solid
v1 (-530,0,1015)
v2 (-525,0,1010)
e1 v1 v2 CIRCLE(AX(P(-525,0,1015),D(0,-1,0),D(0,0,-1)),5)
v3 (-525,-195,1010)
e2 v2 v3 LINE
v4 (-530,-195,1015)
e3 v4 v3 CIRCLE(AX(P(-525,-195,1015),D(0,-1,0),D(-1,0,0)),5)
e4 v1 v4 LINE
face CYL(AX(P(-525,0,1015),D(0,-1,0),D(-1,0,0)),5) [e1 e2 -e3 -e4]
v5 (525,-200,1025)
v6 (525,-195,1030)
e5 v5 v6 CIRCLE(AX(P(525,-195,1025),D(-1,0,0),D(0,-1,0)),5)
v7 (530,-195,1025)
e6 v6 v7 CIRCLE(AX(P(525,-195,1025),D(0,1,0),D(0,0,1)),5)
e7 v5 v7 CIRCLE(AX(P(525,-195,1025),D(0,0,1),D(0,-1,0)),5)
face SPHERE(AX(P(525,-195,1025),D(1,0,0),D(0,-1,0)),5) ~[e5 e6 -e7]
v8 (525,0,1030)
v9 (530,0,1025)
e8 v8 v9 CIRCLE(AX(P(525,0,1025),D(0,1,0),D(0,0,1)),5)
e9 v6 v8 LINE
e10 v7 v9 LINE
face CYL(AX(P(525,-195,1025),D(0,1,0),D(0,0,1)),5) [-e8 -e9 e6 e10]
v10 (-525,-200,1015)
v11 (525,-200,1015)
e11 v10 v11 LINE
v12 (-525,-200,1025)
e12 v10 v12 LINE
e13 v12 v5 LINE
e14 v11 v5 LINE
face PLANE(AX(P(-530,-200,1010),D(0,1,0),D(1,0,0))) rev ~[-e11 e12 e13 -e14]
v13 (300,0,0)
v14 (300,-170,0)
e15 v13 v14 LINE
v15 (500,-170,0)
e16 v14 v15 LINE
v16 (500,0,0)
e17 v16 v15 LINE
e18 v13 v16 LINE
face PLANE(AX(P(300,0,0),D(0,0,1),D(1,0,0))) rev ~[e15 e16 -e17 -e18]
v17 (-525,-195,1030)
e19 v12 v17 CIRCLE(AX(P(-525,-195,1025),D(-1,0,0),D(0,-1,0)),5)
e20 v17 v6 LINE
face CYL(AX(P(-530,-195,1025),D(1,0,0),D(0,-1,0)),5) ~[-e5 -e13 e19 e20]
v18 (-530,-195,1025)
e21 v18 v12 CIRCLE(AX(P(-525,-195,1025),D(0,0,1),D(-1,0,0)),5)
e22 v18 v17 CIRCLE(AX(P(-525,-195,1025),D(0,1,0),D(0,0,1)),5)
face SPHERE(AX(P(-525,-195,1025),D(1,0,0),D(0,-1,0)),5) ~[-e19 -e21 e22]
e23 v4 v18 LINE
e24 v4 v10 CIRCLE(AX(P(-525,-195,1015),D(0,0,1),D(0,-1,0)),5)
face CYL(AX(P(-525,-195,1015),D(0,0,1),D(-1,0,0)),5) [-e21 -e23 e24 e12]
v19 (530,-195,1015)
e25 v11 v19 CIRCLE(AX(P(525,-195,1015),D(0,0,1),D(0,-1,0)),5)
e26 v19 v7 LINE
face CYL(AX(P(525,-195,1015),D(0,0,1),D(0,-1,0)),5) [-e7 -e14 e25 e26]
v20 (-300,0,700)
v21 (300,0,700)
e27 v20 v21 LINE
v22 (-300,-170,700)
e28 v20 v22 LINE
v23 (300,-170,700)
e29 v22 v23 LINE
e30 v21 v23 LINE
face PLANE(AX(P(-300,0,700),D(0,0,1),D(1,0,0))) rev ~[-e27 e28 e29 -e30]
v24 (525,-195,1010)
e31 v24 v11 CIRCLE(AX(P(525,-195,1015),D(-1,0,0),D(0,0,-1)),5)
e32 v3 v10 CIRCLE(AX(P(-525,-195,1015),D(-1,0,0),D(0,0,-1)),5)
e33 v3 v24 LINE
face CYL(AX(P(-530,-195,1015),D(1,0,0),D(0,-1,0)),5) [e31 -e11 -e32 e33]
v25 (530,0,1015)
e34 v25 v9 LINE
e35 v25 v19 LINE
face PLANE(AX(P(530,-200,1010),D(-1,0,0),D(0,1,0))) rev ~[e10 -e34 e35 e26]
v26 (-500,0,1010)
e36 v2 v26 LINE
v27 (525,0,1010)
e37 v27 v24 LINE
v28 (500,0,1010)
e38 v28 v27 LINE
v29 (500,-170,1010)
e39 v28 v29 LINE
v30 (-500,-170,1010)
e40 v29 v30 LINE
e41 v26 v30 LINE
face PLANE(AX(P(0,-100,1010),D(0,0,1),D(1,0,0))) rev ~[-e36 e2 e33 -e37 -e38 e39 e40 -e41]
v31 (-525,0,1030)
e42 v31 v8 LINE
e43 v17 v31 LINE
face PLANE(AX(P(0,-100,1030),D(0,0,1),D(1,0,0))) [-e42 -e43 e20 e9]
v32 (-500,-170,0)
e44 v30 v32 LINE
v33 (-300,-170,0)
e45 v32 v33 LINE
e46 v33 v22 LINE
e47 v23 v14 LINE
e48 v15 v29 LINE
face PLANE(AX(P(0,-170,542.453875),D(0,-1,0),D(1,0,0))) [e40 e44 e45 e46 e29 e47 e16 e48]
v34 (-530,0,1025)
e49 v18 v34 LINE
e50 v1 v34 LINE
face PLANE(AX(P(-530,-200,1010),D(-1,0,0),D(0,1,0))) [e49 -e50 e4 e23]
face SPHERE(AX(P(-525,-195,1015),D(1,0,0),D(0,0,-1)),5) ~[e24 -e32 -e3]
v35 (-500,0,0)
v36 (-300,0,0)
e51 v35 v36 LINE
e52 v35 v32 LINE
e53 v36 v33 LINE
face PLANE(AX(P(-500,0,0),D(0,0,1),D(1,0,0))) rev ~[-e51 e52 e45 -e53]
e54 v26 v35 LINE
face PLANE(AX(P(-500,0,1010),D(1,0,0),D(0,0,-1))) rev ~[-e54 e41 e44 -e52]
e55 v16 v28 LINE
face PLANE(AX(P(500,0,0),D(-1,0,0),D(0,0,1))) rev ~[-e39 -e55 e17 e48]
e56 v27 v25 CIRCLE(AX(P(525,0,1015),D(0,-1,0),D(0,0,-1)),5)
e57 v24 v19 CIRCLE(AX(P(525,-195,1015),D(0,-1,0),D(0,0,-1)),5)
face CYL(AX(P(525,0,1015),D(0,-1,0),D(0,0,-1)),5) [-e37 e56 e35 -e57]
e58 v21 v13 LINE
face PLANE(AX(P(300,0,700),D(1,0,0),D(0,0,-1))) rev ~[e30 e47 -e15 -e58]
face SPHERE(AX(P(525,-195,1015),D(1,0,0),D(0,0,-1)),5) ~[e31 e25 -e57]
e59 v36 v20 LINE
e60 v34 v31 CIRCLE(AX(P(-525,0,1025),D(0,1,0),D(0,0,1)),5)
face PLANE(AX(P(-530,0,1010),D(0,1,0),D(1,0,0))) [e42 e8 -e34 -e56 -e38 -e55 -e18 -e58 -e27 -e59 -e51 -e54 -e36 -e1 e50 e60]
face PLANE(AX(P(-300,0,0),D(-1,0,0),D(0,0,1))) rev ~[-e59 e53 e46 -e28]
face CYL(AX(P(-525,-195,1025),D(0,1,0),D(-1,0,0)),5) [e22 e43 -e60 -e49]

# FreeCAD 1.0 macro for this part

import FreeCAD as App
import Part
import Sketcher

V = App.Vector


def edges_at(feature, points):
    """Names of the edges that pass closest to the given points."""
    edges = feature.Shape.Edges
    near = lambda p: min(range(len(edges)), key=lambda i: edges[i].distToShape(Part.Vertex(*p))[0])
    return sorted({f"Edge{near(p) + 1}" for p in points})

doc = App.newDocument("Part")
body = doc.addObject("PartDesign::Body", "Body")

# Sketch on XZ plane
sketch1 = body.newObject("Sketcher::SketchObject", "Sketch")
sketch1.AttachmentSupport = (doc.getObject("XZ_Plane"), [""])
sketch1.MapMode = "FlatFace"
sketch1.addGeometry(Part.LineSegment(V(500, 1010, 0), V(-500, 1010, 0)), False)
sketch1.addGeometry(Part.LineSegment(V(-500, 1010, 0), V(-500, 0, 0)), False)
sketch1.addGeometry(Part.LineSegment(V(-500, 0, 0), V(-300, 0, 0)), False)
sketch1.addGeometry(Part.LineSegment(V(-300, 0, 0), V(-300, 700, 0)), False)
sketch1.addGeometry(Part.LineSegment(V(-300, 700, 0), V(300, 700, 0)), False)
sketch1.addGeometry(Part.LineSegment(V(300, 700, 0), V(300, 0, 0)), False)
sketch1.addGeometry(Part.LineSegment(V(300, 0, 0), V(500, 0, 0)), False)
sketch1.addGeometry(Part.LineSegment(V(500, 0, 0), V(500, 1010, 0)), False)
sketch1.addConstraint(Sketcher.Constraint("Coincident", 0, 2, 1, 1))
sketch1.addConstraint(Sketcher.Constraint("Coincident", 1, 2, 2, 1))
sketch1.addConstraint(Sketcher.Constraint("Coincident", 2, 2, 3, 1))
sketch1.addConstraint(Sketcher.Constraint("Coincident", 3, 2, 4, 1))
sketch1.addConstraint(Sketcher.Constraint("Coincident", 4, 2, 5, 1))
sketch1.addConstraint(Sketcher.Constraint("Coincident", 5, 2, 6, 1))
sketch1.addConstraint(Sketcher.Constraint("Coincident", 6, 2, 7, 1))
sketch1.addConstraint(Sketcher.Constraint("Coincident", 7, 2, 0, 1))
sketch1.addConstraint(Sketcher.Constraint("Horizontal", 0))
sketch1.addConstraint(Sketcher.Constraint("Vertical", 1))
sketch1.addConstraint(Sketcher.Constraint("Horizontal", 2))
sketch1.addConstraint(Sketcher.Constraint("Vertical", 3))
sketch1.addConstraint(Sketcher.Constraint("Horizontal", 4))
sketch1.addConstraint(Sketcher.Constraint("Vertical", 5))
sketch1.addConstraint(Sketcher.Constraint("Horizontal", 6))
sketch1.addConstraint(Sketcher.Constraint("Vertical", 7))
sketch1.addConstraint(Sketcher.Constraint("Symmetric", 2, 2, 5, 2, -1, 1))
sketch1.addConstraint(Sketcher.Constraint("Symmetric", 1, 2, 6, 2, -2))
sketch1.addConstraint(Sketcher.Constraint("DistanceX", 0, 2, 0, 1, 1000.0))
sketch1.addConstraint(Sketcher.Constraint("DistanceX", 2, 1, 2, 2, 200.0))
sketch1.addConstraint(Sketcher.Constraint("DistanceY", 1, 2, 1, 1, 1010.0))
sketch1.addConstraint(Sketcher.Constraint("DistanceY", 3, 1, 3, 2, 700.0))
pad1 = body.newObject("PartDesign::Pad", "Pad")
pad1.Profile = sketch1
pad1.Length = 170

# Sketch on XY plane
sketch2 = body.newObject("Sketcher::SketchObject", "Sketch001")
sketch2.AttachmentSupport = (doc.getObject("XY_Plane"), [""])
sketch2.MapMode = "FlatFace"
sketch2.AttachmentOffset = App.Placement(V(0, 0, 1010), App.Rotation())
sketch2.addGeometry(Part.LineSegment(V(-530, 0, 0), V(-530, -200, 0)), False)
sketch2.addGeometry(Part.LineSegment(V(-530, -200, 0), V(530, -200, 0)), False)
sketch2.addGeometry(Part.LineSegment(V(530, -200, 0), V(530, 0, 0)), False)
sketch2.addGeometry(Part.LineSegment(V(530, 0, 0), V(-530, 0, 0)), False)
sketch2.addConstraint(Sketcher.Constraint("Coincident", 0, 2, 1, 1))
sketch2.addConstraint(Sketcher.Constraint("Coincident", 1, 2, 2, 1))
sketch2.addConstraint(Sketcher.Constraint("Coincident", 2, 2, 3, 1))
sketch2.addConstraint(Sketcher.Constraint("Coincident", 3, 2, 0, 1))
sketch2.addConstraint(Sketcher.Constraint("Vertical", 0))
sketch2.addConstraint(Sketcher.Constraint("Horizontal", 1))
sketch2.addConstraint(Sketcher.Constraint("Vertical", 2))
sketch2.addConstraint(Sketcher.Constraint("Horizontal", 3))
sketch2.addConstraint(Sketcher.Constraint("Symmetric", 2, 2, 3, 2, -1, 1))
sketch2.addConstraint(Sketcher.Constraint("DistanceX", 1, 1, 1, 2, 1060.0))
sketch2.addConstraint(Sketcher.Constraint("DistanceY", 0, 2, 0, 1, 200.0))
pad2 = body.newObject("PartDesign::Pad", "Pad001")
pad2.Profile = sketch2
pad2.Length = 20
doc.recompute()

fillet = body.newObject("PartDesign::Fillet", "Fillet")
fillet.Base = (pad2, edges_at(pad2, [(0, -200, 1010)]))
fillet.Radius = 5
doc.recompute()

fillet2 = body.newObject("PartDesign::Fillet", "Fillet001")
fillet2.Base = (fillet, edges_at(fillet, [(0, -200, 1030)]))
fillet2.Radius = 5
doc.recompute()

fillet3 = body.newObject("PartDesign::Fillet", "Fillet002")
fillet3.Base = (fillet2, edges_at(fillet2, [(530, -97.5, 1030)]))
fillet3.Radius = 5
doc.recompute()

fillet4 = body.newObject("PartDesign::Fillet", "Fillet003")
fillet4.Base = (fillet3, edges_at(fillet3, [(-530, -97.5, 1030)]))
fillet4.Radius = 5

doc.recompute()
